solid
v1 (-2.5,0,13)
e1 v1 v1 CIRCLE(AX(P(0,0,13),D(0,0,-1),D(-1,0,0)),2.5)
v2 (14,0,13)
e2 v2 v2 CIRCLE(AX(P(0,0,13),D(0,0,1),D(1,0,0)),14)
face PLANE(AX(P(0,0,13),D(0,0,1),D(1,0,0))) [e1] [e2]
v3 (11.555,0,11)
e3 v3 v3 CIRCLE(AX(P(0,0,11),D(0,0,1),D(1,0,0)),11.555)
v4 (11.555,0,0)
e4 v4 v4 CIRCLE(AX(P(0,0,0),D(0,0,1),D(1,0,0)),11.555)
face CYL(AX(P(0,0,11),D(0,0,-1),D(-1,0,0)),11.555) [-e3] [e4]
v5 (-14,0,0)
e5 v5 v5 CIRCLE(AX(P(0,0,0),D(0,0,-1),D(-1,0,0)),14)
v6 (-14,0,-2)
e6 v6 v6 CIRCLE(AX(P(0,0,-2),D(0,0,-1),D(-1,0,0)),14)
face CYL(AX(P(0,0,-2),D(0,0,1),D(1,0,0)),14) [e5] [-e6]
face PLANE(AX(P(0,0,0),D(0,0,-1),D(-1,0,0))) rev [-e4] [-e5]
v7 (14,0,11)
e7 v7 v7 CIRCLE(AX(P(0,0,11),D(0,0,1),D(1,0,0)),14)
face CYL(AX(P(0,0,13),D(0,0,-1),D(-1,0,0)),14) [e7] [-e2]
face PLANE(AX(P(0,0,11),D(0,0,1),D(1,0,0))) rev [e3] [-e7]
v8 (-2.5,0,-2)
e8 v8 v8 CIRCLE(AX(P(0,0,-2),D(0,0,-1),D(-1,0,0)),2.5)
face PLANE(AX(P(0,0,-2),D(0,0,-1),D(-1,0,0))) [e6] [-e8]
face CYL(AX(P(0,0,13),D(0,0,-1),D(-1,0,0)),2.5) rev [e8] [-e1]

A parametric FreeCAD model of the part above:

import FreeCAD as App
import Part
import Sketcher

V = App.Vector
Q = App.Units.Quantity

doc = App.newDocument("Part")
body = doc.addObject("PartDesign::Body", "Body")

sketch1 = body.newObject("Sketcher::SketchObject", "Sketch")
sketch1.AttachmentSupport = (doc.getObject("XY_Plane"), [""])
sketch1.MapMode = "FlatFace"
sketch1.addGeometry(Part.Circle(V(0, 0, 0), V(0, 0, 1), 11.555), False)
sketch1.addConstraint([
    Sketcher.Constraint("Coincident", 0, 3, -1, 1),
    Sketcher.Constraint("Diameter", 0, Q("23.11 mm")),
])
pad1 = body.newObject("PartDesign::Pad", "Pad")
pad1.Profile = sketch1
pad1.Length = 11

sketch2 = body.newObject("Sketcher::SketchObject", "Sketch001")
sketch2.AttachmentSupport = (doc.getObject("XY_Plane"), [""])
sketch2.MapMode = "FlatFace"
sketch2.AttachmentOffset = App.Placement(V(0, 0, 11), App.Rotation())
sketch2.addGeometry(Part.Circle(V(0, 0, 0), V(0, 0, 1), 14), False)
sketch2.addConstraint([
    Sketcher.Constraint("Coincident", 0, 3, -1, 1),
    Sketcher.Constraint("Diameter", 0, Q("28 mm")),
])
pad2 = body.newObject("PartDesign::Pad", "Pad001")
pad2.Profile = sketch2
pad2.Length = 2

sketch3 = body.newObject("Sketcher::SketchObject", "Sketch002")
sketch3.AttachmentSupport = (doc.getObject("XY_Plane"), [""])
sketch3.MapMode = "FlatFace"
sketch3.AttachmentOffset = App.Placement(V(0, 0, -2), App.Rotation())
sketch3.addGeometry(Part.Circle(V(0, 0, 0), V(0, 0, 1), 14), False)
sketch3.addConstraint([
    Sketcher.Constraint("Coincident", 0, 3, -1, 1),
    Sketcher.Constraint("Diameter", 0, Q("28 mm")),
])
pad3 = body.newObject("PartDesign::Pad", "Pad002")
pad3.Profile = sketch3
pad3.Length = 2

sketch4 = body.newObject("Sketcher::SketchObject", "Sketch003")
sketch4.AttachmentSupport = (doc.getObject("XY_Plane"), [""])
sketch4.MapMode = "FlatFace"
sketch4.AttachmentOffset = App.Placement(V(0, 0, -2), App.Rotation())
sketch4.addGeometry(Part.Circle(V(0, 0, 0), V(0, 0, 1), 2.5), False)
sketch4.addConstraint([
    Sketcher.Constraint("Coincident", 0, 3, -1, 1),
    Sketcher.Constraint("Diameter", 0, Q("5 mm")),
])
pocket1 = body.newObject("PartDesign::Pocket", "Pocket")
pocket1.Profile = sketch4
pocket1.Type = "ThroughAll"
pocket1.Reversed = True

doc.recompute()
